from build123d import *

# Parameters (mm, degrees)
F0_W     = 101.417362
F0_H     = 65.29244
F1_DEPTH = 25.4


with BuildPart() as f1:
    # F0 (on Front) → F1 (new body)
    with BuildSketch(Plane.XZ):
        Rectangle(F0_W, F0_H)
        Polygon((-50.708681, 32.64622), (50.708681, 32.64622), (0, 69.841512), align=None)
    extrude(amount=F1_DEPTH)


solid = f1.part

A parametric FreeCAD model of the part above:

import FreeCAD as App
import Part
import Sketcher

V = App.Vector
Q = App.Units.Quantity

doc = App.newDocument("Part")
body = doc.addObject("PartDesign::Body", "Body")

# Sketch on XZ plane
sketch1 = body.newObject("Sketcher::SketchObject", "Sketch")
sketch1.AttachmentSupport = (doc.getObject("XZ_Plane"), [""])
sketch1.MapMode = "FlatFace"
sketch1.addGeometry([
    Part.LineSegment(V(-50.708681, 32.64622, 0), V(-50.708681, -32.64622, 0)),  # 0
    Part.LineSegment(V(-50.708681, -32.64622, 0), V(50.708681, -32.64622, 0)),  # 1
    Part.LineSegment(V(50.708681, -32.64622, 0), V(50.708681, 32.64622, 0)),  # 2
    Part.LineSegment(V(50.708681, 32.64622, 0), V(0, 69.841512, 0)),  # 3
    Part.LineSegment(V(0, 69.841512, 0), V(-50.708681, 32.64622, 0)),  # 4
], False)
sketch1.addConstraint([
    Sketcher.Constraint("Coincident", 0, 2, 1, 1),
    Sketcher.Constraint("Coincident", 1, 2, 2, 1),
    Sketcher.Constraint("Coincident", 2, 2, 3, 1),
    Sketcher.Constraint("Coincident", 3, 2, 4, 1),
    Sketcher.Constraint("Coincident", 4, 2, 0, 1),
    Sketcher.Constraint("Vertical", 0),
    Sketcher.Constraint("Horizontal", 1),
    Sketcher.Constraint("Vertical", 2),
    Sketcher.Constraint("Symmetric", 0, 2, 2, 2, -1, 1),
    Sketcher.Constraint("PointOnObject", 3, 2, -2),
    Sketcher.Constraint("Horizontal", 2, 2, 4, 2),
    Sketcher.Constraint("DistanceX", 1, 1, 1, 2, Q("101.417362 mm")),
    Sketcher.Constraint("DistanceY", 0, 2, 0, 1, Q("65.29244 mm")),
    Sketcher.Constraint("Distance", 3, Q("62.887678 mm")),
])
pad1 = body.newObject("PartDesign::Pad", "Pad")
pad1.Profile = sketch1
pad1.Length = Q("1 in")

doc.recompute()
